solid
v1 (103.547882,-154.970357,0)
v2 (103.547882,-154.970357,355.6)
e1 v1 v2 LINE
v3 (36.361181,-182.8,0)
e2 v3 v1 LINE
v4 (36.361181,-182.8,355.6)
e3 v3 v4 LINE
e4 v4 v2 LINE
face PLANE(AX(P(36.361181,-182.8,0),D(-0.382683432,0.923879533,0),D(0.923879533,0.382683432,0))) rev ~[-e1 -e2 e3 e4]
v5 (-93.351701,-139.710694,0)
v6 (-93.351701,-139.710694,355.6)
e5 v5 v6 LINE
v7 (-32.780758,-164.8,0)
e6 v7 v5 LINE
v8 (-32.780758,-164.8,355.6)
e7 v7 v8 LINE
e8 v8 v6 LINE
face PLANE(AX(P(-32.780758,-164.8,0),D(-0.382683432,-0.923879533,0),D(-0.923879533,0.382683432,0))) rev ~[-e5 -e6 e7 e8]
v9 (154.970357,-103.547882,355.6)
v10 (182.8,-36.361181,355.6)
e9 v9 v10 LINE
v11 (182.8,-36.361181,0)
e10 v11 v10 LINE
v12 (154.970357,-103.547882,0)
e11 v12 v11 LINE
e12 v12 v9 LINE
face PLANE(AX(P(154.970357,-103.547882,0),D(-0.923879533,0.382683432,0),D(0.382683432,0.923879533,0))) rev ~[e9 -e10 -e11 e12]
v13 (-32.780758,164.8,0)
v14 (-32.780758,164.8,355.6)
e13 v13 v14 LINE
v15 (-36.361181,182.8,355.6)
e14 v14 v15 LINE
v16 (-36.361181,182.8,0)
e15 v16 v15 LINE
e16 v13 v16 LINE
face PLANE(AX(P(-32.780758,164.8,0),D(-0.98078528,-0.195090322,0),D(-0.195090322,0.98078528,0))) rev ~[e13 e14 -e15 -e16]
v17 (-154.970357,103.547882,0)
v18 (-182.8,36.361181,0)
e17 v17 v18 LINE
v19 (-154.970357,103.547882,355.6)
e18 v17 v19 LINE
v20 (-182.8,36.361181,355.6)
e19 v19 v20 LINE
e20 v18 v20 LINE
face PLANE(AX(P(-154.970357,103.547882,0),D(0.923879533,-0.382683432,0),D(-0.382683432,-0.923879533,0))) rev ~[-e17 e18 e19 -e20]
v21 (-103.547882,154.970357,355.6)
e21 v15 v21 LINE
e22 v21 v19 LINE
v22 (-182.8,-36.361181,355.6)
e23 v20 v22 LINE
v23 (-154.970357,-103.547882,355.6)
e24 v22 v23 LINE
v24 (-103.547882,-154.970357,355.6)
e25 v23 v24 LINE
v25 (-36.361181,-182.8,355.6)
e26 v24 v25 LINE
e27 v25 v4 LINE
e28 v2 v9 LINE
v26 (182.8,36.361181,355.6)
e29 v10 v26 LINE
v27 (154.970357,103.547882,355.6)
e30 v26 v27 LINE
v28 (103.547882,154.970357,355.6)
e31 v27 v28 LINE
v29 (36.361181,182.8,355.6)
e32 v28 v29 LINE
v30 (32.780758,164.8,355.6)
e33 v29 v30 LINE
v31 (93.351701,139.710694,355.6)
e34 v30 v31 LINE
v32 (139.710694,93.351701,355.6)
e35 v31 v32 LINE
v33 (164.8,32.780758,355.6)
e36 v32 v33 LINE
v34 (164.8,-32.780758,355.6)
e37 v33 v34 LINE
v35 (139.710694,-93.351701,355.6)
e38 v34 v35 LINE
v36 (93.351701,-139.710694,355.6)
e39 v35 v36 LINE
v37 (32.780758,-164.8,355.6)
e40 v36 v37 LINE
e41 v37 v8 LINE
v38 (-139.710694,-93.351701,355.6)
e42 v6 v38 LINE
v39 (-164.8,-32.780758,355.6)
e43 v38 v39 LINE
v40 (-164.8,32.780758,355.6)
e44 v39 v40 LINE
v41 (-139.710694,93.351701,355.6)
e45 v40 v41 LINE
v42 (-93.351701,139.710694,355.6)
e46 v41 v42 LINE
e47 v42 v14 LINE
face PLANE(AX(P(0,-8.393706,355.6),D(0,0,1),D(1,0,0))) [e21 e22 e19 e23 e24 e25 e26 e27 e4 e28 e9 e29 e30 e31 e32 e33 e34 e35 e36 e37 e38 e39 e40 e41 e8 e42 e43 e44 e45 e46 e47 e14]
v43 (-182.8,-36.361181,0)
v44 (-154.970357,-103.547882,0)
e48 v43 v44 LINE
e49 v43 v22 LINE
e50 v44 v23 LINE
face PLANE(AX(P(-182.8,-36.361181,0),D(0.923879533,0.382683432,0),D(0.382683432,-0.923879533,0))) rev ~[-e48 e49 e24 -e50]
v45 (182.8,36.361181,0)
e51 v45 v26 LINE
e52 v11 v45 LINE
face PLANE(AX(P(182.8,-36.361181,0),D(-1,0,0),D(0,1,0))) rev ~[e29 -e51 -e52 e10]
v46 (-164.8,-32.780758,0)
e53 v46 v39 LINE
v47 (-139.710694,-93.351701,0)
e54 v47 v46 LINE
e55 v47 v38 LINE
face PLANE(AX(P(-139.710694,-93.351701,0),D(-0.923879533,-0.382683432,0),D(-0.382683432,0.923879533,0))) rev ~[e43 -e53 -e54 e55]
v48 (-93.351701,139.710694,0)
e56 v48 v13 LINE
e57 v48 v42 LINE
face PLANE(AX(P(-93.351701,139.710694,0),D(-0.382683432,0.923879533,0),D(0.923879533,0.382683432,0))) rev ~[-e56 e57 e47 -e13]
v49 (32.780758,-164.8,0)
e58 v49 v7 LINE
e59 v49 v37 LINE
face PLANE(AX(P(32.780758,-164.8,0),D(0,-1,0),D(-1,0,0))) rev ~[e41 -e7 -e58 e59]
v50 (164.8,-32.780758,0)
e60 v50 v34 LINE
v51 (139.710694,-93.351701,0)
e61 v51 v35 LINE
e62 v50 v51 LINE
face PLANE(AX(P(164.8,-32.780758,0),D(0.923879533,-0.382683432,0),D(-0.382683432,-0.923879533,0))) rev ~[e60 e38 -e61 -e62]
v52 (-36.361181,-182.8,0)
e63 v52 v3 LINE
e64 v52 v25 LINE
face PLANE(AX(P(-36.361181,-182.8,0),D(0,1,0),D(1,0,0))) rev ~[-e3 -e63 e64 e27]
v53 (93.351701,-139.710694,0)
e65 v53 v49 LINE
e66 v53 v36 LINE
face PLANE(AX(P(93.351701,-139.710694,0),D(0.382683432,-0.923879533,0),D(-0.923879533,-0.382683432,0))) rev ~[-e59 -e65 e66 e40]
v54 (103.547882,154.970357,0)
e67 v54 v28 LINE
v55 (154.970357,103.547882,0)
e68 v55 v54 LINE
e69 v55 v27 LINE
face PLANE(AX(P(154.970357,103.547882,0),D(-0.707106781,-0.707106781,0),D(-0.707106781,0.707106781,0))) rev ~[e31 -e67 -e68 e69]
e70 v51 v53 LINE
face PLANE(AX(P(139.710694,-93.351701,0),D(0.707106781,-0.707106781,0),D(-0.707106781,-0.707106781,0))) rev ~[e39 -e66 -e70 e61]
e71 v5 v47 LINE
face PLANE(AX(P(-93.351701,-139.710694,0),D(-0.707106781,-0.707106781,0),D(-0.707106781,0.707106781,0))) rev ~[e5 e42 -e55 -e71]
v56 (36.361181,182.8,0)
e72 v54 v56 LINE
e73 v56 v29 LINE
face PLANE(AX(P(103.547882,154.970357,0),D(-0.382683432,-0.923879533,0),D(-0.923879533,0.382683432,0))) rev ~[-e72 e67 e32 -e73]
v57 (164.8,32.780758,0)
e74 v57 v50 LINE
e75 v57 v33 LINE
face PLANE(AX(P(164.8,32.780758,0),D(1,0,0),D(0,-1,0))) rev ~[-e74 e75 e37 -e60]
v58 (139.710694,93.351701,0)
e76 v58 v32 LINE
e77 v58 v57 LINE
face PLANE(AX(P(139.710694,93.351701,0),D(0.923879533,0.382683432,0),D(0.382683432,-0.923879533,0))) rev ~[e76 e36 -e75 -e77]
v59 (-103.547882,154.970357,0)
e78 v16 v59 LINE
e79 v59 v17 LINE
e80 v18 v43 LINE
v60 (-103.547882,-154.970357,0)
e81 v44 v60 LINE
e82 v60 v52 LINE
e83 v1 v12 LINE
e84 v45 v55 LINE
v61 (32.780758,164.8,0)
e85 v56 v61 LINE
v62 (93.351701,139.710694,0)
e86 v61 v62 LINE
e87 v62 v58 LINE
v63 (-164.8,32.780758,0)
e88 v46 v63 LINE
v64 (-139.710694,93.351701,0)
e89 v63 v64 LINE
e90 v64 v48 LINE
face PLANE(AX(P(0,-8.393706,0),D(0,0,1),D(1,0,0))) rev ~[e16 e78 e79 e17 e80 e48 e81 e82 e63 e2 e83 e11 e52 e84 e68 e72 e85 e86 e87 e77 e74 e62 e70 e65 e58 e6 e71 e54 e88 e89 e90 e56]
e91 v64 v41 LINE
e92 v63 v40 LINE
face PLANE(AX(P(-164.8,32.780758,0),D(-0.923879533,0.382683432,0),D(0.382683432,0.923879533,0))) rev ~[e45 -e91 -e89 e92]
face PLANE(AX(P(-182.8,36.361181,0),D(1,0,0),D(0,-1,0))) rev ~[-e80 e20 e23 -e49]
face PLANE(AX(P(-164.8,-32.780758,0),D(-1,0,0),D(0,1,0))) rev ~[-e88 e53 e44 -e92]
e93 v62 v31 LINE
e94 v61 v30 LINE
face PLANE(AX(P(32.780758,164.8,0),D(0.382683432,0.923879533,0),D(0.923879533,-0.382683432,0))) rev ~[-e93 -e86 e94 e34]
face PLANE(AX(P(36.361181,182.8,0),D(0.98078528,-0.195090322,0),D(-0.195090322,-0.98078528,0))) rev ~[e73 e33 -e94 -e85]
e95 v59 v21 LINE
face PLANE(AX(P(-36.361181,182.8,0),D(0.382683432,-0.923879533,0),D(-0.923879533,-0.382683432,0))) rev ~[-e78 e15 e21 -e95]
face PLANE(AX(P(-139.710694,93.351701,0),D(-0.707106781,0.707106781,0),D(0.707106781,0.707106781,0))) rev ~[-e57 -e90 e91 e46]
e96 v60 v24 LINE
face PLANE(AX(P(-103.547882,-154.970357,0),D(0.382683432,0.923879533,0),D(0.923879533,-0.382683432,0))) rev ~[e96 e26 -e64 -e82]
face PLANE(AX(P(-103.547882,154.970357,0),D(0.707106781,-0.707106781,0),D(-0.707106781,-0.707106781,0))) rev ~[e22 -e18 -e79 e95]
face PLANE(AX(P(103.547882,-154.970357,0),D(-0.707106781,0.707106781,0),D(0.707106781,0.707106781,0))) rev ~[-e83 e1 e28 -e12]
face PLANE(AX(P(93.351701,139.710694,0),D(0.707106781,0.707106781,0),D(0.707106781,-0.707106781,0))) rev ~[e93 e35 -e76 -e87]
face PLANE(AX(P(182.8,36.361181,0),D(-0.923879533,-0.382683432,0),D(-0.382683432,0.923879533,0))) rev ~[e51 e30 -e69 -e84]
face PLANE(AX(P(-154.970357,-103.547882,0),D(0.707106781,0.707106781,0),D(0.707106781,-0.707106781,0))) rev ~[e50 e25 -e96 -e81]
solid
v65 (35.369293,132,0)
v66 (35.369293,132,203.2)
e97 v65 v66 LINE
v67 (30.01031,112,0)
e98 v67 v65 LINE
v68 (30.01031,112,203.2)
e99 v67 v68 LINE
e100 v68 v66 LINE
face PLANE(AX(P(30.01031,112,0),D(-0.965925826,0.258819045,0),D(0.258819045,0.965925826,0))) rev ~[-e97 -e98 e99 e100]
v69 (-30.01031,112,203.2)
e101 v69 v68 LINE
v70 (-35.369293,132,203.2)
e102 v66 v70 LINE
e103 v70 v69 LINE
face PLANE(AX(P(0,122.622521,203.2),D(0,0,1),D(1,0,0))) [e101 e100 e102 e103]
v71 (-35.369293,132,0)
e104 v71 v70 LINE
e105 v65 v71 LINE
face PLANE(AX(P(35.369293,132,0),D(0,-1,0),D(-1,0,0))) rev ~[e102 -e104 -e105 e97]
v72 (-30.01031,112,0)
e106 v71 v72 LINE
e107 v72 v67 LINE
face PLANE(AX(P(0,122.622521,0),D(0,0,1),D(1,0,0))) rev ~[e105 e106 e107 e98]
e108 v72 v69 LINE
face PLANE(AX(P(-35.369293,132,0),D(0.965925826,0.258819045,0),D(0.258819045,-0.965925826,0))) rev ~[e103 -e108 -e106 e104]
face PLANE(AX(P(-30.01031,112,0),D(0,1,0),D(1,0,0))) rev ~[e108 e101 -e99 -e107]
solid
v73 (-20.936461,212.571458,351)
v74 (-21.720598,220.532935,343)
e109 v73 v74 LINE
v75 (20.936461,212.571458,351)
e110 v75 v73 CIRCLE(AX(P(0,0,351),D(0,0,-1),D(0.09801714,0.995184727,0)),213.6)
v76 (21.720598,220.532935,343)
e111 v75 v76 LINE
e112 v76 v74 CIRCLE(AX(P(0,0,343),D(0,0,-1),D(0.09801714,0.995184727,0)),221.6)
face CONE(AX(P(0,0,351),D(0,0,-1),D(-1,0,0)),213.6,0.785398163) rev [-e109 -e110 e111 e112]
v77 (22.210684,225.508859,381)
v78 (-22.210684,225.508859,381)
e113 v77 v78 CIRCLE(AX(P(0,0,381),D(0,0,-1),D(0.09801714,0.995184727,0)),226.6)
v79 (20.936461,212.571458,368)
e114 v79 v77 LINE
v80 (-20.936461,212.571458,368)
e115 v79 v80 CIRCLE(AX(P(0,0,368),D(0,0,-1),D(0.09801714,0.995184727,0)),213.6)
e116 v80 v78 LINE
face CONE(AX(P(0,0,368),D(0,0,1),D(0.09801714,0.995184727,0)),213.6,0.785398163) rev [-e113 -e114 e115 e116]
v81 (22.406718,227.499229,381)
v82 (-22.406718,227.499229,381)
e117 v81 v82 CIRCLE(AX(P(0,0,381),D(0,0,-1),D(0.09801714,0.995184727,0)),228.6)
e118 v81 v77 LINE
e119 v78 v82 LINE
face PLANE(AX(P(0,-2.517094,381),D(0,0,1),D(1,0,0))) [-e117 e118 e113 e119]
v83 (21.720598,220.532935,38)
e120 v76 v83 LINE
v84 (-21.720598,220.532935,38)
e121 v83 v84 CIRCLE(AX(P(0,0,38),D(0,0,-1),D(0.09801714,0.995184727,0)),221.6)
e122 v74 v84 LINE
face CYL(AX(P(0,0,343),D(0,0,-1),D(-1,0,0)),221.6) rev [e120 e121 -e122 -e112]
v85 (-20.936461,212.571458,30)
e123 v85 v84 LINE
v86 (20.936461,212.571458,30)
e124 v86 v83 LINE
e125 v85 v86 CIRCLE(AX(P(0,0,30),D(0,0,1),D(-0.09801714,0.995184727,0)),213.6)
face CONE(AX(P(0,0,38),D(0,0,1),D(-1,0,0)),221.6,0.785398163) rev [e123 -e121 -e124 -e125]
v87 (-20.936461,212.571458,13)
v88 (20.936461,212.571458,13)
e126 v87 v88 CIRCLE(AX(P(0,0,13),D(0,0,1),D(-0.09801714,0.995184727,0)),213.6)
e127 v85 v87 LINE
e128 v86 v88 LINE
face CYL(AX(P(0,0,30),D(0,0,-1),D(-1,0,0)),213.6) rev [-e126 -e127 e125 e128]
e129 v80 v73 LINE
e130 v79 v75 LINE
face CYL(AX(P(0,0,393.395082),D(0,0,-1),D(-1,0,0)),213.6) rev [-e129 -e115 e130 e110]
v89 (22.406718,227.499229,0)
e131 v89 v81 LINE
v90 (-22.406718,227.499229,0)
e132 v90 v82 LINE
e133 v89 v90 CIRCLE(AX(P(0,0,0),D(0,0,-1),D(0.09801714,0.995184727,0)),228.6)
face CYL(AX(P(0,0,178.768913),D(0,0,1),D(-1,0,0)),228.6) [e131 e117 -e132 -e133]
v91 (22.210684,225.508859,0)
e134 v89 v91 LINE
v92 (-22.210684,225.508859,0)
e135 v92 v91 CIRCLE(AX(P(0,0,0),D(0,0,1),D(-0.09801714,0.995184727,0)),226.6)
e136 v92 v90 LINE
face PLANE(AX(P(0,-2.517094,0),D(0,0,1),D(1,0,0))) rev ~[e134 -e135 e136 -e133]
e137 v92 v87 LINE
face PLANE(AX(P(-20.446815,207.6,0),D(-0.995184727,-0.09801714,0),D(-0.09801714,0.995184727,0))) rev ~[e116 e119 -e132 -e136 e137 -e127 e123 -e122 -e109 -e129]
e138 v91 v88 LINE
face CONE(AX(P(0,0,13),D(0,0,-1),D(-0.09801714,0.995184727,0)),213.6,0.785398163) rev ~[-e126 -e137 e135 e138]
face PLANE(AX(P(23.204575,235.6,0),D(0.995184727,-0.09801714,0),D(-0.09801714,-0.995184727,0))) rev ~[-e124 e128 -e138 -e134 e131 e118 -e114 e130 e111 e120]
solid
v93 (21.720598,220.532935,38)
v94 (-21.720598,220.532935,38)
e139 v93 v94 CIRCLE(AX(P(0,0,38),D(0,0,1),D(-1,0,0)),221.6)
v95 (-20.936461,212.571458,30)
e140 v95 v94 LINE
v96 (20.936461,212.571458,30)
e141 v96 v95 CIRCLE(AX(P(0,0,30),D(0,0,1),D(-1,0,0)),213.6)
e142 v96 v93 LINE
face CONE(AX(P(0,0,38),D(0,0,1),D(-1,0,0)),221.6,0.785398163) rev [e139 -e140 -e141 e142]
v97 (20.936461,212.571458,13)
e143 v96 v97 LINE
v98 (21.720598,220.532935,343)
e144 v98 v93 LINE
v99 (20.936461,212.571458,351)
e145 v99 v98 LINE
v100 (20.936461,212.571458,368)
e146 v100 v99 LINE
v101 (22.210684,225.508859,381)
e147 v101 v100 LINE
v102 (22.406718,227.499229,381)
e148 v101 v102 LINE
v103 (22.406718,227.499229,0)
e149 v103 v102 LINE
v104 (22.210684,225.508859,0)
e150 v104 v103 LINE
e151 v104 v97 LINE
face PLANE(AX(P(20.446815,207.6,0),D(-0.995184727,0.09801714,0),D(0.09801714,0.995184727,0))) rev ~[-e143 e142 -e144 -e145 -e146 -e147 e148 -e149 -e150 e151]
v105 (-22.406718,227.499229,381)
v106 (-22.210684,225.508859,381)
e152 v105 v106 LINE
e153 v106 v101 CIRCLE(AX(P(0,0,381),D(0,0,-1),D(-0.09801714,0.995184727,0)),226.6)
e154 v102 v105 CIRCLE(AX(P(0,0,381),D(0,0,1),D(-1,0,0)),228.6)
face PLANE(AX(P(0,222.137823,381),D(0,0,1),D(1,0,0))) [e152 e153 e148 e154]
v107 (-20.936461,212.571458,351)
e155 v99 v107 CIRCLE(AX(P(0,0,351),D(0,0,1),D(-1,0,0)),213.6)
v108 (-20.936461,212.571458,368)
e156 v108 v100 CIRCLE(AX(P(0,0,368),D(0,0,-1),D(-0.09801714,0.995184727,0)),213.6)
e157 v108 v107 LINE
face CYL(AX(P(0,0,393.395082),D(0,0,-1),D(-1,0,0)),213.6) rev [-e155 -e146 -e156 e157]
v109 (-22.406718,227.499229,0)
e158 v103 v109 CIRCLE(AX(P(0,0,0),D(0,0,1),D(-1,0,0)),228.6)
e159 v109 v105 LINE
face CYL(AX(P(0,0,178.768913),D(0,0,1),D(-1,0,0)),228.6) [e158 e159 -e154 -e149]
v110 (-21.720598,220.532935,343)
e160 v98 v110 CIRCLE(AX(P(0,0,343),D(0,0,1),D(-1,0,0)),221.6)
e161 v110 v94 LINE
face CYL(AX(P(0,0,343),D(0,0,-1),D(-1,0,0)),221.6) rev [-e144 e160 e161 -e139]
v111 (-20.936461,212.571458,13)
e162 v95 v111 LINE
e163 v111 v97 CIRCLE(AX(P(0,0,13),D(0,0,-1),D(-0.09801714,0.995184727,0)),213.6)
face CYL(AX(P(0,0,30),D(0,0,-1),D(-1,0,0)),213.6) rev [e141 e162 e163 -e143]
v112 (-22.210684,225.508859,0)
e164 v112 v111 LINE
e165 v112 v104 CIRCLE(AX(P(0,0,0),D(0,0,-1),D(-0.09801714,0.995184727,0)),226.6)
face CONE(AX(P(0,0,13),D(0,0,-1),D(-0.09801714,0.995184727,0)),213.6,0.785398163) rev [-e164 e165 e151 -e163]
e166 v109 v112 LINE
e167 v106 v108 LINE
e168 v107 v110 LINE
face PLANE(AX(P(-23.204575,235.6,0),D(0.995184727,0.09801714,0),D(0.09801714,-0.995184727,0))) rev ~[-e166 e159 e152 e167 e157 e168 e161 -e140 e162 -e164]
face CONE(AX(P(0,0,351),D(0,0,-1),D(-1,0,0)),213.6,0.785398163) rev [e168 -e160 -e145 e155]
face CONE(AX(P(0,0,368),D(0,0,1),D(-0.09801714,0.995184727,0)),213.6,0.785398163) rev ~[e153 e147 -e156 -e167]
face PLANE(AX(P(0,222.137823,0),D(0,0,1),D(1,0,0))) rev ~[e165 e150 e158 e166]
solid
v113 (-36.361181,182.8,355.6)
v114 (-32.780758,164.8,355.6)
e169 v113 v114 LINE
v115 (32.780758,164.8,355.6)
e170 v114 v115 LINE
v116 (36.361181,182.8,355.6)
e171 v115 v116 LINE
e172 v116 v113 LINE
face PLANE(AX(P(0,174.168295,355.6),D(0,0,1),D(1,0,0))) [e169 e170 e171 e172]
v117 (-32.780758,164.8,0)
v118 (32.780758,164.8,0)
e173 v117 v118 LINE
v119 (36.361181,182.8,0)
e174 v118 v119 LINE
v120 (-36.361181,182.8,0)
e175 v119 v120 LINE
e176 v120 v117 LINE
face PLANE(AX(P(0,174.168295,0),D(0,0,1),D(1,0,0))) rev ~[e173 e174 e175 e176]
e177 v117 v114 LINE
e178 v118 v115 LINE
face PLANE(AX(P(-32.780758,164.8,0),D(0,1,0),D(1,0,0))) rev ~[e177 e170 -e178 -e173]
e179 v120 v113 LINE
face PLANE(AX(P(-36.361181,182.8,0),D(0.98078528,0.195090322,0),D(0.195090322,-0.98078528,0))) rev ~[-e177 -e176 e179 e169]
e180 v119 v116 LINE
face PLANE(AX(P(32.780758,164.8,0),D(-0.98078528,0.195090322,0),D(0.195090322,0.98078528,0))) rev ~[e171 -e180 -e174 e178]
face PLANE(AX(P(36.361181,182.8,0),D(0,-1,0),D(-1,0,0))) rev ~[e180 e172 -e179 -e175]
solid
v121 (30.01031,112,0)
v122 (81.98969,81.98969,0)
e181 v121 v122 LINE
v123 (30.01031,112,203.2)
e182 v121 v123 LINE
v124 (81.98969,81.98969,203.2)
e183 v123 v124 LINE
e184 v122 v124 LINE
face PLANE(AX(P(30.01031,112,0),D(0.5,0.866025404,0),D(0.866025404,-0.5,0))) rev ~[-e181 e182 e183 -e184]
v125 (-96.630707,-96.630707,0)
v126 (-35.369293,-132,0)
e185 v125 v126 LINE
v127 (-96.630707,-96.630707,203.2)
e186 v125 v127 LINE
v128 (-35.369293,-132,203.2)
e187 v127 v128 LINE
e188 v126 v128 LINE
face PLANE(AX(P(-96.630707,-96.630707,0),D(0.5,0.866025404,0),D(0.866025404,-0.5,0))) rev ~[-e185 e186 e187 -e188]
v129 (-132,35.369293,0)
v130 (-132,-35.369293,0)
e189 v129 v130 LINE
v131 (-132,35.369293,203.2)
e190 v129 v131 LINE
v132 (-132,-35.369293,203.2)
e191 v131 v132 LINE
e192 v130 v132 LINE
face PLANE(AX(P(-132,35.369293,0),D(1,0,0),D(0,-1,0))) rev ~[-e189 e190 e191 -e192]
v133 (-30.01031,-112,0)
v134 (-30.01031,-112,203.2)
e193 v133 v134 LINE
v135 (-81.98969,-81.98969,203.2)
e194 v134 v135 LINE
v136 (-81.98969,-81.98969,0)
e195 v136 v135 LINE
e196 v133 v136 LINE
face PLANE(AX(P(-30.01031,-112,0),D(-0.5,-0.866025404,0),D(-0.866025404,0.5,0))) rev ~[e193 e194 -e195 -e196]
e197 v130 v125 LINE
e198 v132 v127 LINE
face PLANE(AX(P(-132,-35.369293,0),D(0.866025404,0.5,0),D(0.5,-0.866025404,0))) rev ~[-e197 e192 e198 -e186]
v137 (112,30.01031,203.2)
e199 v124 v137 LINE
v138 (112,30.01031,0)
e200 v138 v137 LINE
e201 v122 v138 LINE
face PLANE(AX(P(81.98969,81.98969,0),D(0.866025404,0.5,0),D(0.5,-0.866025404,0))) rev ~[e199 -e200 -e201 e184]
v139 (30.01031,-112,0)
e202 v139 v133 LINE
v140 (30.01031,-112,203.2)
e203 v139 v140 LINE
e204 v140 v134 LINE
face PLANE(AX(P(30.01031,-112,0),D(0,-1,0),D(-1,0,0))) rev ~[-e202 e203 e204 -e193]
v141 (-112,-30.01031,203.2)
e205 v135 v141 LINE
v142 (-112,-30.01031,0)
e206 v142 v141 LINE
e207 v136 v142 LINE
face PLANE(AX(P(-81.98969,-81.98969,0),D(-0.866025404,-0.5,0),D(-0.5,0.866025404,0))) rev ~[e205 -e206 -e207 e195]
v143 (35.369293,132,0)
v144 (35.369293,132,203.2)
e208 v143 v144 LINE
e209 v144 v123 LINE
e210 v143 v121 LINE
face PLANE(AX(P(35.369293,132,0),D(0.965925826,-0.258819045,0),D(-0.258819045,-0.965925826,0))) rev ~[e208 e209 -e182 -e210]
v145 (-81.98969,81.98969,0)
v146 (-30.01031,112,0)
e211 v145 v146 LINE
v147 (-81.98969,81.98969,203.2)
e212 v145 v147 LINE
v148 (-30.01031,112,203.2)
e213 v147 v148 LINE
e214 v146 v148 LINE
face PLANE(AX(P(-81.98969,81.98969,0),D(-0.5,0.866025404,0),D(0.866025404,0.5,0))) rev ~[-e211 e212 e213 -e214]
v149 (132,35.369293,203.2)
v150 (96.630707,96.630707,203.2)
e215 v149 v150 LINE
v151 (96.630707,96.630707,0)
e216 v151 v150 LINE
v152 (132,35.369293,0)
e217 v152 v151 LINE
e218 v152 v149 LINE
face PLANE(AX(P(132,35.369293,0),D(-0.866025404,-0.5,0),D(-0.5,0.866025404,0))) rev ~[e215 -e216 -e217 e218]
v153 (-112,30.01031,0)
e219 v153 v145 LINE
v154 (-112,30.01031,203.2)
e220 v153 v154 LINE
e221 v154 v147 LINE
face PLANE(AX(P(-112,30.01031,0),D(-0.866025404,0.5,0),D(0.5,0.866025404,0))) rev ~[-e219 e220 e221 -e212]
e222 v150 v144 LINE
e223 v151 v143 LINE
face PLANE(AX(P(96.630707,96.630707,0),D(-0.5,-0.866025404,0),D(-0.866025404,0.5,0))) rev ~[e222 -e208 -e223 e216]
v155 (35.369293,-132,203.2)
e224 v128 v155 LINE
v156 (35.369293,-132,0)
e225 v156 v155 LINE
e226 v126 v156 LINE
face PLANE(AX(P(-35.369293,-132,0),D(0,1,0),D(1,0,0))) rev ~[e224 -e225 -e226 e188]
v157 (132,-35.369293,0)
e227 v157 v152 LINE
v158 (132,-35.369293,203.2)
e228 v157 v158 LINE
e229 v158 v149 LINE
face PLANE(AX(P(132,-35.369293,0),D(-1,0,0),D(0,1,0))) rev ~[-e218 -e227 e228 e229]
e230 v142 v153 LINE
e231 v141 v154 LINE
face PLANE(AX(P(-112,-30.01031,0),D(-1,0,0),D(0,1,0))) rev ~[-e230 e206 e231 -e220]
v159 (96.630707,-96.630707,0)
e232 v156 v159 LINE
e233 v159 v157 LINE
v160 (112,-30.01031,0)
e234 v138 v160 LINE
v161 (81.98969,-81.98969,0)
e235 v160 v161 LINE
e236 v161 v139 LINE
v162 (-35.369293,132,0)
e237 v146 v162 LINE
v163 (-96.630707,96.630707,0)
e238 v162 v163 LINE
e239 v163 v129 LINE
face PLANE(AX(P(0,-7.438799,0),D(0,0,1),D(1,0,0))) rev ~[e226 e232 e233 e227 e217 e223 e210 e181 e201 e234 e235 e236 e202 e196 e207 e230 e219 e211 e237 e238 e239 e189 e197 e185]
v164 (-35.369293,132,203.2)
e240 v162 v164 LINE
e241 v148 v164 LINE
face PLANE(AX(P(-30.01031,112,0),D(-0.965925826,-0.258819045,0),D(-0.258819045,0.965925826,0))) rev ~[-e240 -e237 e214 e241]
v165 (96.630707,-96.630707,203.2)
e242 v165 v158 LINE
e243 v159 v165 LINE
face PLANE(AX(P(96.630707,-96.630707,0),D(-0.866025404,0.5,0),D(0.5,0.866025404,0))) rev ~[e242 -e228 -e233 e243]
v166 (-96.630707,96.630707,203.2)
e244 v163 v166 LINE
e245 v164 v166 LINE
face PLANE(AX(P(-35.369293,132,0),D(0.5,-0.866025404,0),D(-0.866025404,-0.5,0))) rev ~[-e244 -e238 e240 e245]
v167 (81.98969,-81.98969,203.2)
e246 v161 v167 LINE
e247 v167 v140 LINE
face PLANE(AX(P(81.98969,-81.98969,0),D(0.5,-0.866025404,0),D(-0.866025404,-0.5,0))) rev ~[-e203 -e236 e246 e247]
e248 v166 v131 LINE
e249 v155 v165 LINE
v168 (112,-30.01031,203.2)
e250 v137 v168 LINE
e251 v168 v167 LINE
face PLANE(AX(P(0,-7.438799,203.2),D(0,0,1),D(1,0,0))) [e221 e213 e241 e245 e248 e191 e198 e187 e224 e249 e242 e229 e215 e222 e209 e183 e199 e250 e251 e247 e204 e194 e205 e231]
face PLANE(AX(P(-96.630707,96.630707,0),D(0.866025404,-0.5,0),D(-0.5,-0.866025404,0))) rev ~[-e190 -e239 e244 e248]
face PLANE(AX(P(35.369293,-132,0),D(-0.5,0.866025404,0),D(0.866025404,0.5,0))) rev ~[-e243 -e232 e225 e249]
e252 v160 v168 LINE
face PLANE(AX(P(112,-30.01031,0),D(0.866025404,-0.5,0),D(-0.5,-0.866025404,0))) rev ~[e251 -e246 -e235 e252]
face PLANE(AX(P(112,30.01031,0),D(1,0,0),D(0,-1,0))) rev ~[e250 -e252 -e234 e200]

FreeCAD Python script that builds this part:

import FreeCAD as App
import Part
import Sketcher

V = App.Vector
Q = App.Units.Quantity


def edges_at(feature, points):
    """Names of the edges that pass closest to the given points."""
    edges = feature.Shape.Edges
    near = lambda p: min(range(len(edges)), key=lambda i: edges[i].distToShape(Part.Vertex(*p))[0])
    return sorted({f"Edge{near(p) + 1}" for p in points})

doc = App.newDocument("Part")
body = doc.addObject("PartDesign::Body", "Body")

sketch1 = doc.addObject("Sketcher::SketchObject", "Sketch")
body.addObject(sketch1)
sketch1.AttachmentSupport = (doc.XY_Plane, [""])
sketch1.MapMode = "FlatFace"
sketch1.addGeometry([
    Part.LineSegment(V(20, 208, 0), V(23, 236, 0)),
    Part.LineSegment(V(23, 236, 0), V(-23, 236, 0)),
    Part.LineSegment(V(-23, 236, 0), V(-20, 208, 0)),
    Part.LineSegment(V(-20, 208, 0), V(20, 208, 0)),
], False)
sketch1.addConstraint([
    Sketcher.Constraint("Coincident", 0, 2, 1, 1),
    Sketcher.Constraint("Coincident", 1, 2, 2, 1),
    Sketcher.Constraint("Coincident", 2, 2, 3, 1),
    Sketcher.Constraint("Coincident", 3, 2, 0, 1),
    Sketcher.Constraint("Horizontal", 1),
    Sketcher.Constraint("Horizontal", 3),
    Sketcher.Constraint("Equal", 0, 2),
    Sketcher.Constraint("DistanceX", 1, 2, 1, 1, 46.409149),
    Sketcher.Constraint("DistanceX", 3, 1, 3, 2, 40.893631),
    Sketcher.Constraint("DistanceY", -1, 1, 0, 2, 235.6),
    Sketcher.Constraint("DistanceY", -1, 1, 2, 2, 207.6),
    Sketcher.Constraint("DistanceX", -1, 1, 0, 2, 23.204575),
])
pad1 = doc.addObject("PartDesign::Pad", "Pad")
body.addObject(pad1)
pad1.Profile = sketch1
pad1.Length = Q("15 in")
body2 = doc.addObject("PartDesign::Body", "Body001")

sketch2 = doc.addObject("Sketcher::SketchObject", "Sketch001")
body2.addObject(sketch2)
sketch2.AttachmentSupport = (doc.getObject("XY_Plane001"), [""])
sketch2.MapMode = "FlatFace"
sketch2.addGeometry([
    Part.LineSegment(V(236, 23, 0), V(227, 69, 0)),
    Part.LineSegment(V(227, 69, 0), V(209, 112, 0)),
    Part.LineSegment(V(209, 112, 0), V(183, 150, 0)),
    Part.LineSegment(V(183, 150, 0), V(150, 183, 0)),
    Part.LineSegment(V(150, 183, 0), V(112, 209, 0)),
    Part.LineSegment(V(112, 209, 0), V(69, 227, 0)),
    Part.LineSegment(V(69, 227, 0), V(23, 236, 0)),
    Part.LineSegment(V(23, 236, 0), V(20, 208, 0)),
    Part.LineSegment(V(20, 208, 0), V(61, 200, 0)),
    Part.LineSegment(V(61, 200, 0), V(98, 184, 0)),
    Part.LineSegment(V(98, 184, 0), V(132, 161, 0)),
    Part.LineSegment(V(132, 161, 0), V(161, 132, 0)),
    Part.LineSegment(V(161, 132, 0), V(184, 98, 0)),
    Part.LineSegment(V(184, 98, 0), V(200, 61, 0)),
    Part.LineSegment(V(200, 61, 0), V(208, 20, 0)),
    Part.LineSegment(V(208, 20, 0), V(208, -20, 0)),
    Part.LineSegment(V(208, -20, 0), V(200, -61, 0)),
    Part.LineSegment(V(200, -61, 0), V(184, -98, 0)),
    Part.LineSegment(V(184, -98, 0), V(161, -132, 0)),
    Part.LineSegment(V(161, -132, 0), V(132, -161, 0)),
    Part.LineSegment(V(132, -161, 0), V(98, -184, 0)),
    Part.LineSegment(V(98, -184, 0), V(61, -200, 0)),
    Part.LineSegment(V(61, -200, 0), V(20, -208, 0)),
    Part.LineSegment(V(20, -208, 0), V(-20, -208, 0)),
    Part.LineSegment(V(-20, -208, 0), V(-61, -200, 0)),
    Part.LineSegment(V(-61, -200, 0), V(-98, -184, 0)),
    Part.LineSegment(V(-98, -184, 0), V(-132, -161, 0)),
    Part.LineSegment(V(-132, -161, 0), V(-161, -132, 0)),
    Part.LineSegment(V(-161, -132, 0), V(-184, -98, 0)),
    Part.LineSegment(V(-184, -98, 0), V(-200, -61, 0)),
    Part.LineSegment(V(-200, -61, 0), V(-208, -20, 0)),
    Part.LineSegment(V(-208, -20, 0), V(-208, 20, 0)),
    Part.LineSegment(V(-208, 20, 0), V(-200, 61, 0)),
    Part.LineSegment(V(-200, 61, 0), V(-184, 98, 0)),
    Part.LineSegment(V(-184, 98, 0), V(-161, 132, 0)),
    Part.LineSegment(V(-161, 132, 0), V(-132, 161, 0)),
    Part.LineSegment(V(-132, 161, 0), V(-98, 184, 0)),
    Part.LineSegment(V(-98, 184, 0), V(-61, 200, 0)),
    Part.LineSegment(V(-61, 200, 0), V(-20, 208, 0)),
    Part.LineSegment(V(-20, 208, 0), V(-23, 236, 0)),
    Part.LineSegment(V(-23, 236, 0), V(-69, 227, 0)),
    Part.LineSegment(V(-69, 227, 0), V(-112, 209, 0)),
    Part.LineSegment(V(-112, 209, 0), V(-150, 183, 0)),
    Part.LineSegment(V(-150, 183, 0), V(-183, 150, 0)),
    Part.LineSegment(V(-183, 150, 0), V(-209, 112, 0)),
    Part.LineSegment(V(-209, 112, 0), V(-227, 69, 0)),
    Part.LineSegment(V(-227, 69, 0), V(-236, 23, 0)),
    Part.LineSegment(V(-236, 23, 0), V(-236, -23, 0)),
    Part.LineSegment(V(-236, -23, 0), V(-227, -69, 0)),
    Part.LineSegment(V(-227, -69, 0), V(-209, -112, 0)),
    Part.LineSegment(V(-209, -112, 0), V(-183, -150, 0)),
    Part.LineSegment(V(-183, -150, 0), V(-150, -183, 0)),
    Part.LineSegment(V(-150, -183, 0), V(-112, -209, 0)),
    Part.LineSegment(V(-112, -209, 0), V(-69, -227, 0)),
    Part.LineSegment(V(-69, -227, 0), V(-23, -236, 0)),
    Part.LineSegment(V(-23, -236, 0), V(23, -236, 0)),
    Part.LineSegment(V(23, -236, 0), V(69, -227, 0)),
    Part.LineSegment(V(69, -227, 0), V(112, -209, 0)),
    Part.LineSegment(V(112, -209, 0), V(150, -183, 0)),
    Part.LineSegment(V(150, -183, 0), V(183, -150, 0)),
    Part.LineSegment(V(183, -150, 0), V(209, -112, 0)),
    Part.LineSegment(V(209, -112, 0), V(227, -69, 0)),
    Part.LineSegment(V(227, -69, 0), V(236, -23, 0)),
    Part.LineSegment(V(236, -23, 0), V(236, 23, 0)),
], False)
sketch2.addConstraint([
    Sketcher.Constraint("Coincident", 0, 2, 1, 1),
    Sketcher.Constraint("Coincident", 1, 2, 2, 1),
    Sketcher.Constraint("Coincident", 2, 2, 3, 1),
    Sketcher.Constraint("Coincident", 3, 2, 4, 1),
    Sketcher.Constraint("Coincident", 4, 2, 5, 1),
    Sketcher.Constraint("Coincident", 5, 2, 6, 1),
    Sketcher.Constraint("Coincident", 6, 2, 7, 1),
    Sketcher.Constraint("Coincident", 7, 2, 8, 1),
    Sketcher.Constraint("Coincident", 8, 2, 9, 1),
    Sketcher.Constraint("Coincident", 9, 2, 10, 1),
    Sketcher.Constraint("Coincident", 10, 2, 11, 1),
    Sketcher.Constraint("Coincident", 11, 2, 12, 1),
    Sketcher.Constraint("Coincident", 12, 2, 13, 1),
    Sketcher.Constraint("Coincident", 13, 2, 14, 1),
    Sketcher.Constraint("Coincident", 14, 2, 15, 1),
    Sketcher.Constraint("Coincident", 15, 2, 16, 1),
    Sketcher.Constraint("Coincident", 16, 2, 17, 1),
    Sketcher.Constraint("Coincident", 17, 2, 18, 1),
    Sketcher.Constraint("Coincident", 18, 2, 19, 1),
    Sketcher.Constraint("Coincident", 19, 2, 20, 1),
    Sketcher.Constraint("Coincident", 20, 2, 21, 1),
    Sketcher.Constraint("Coincident", 21, 2, 22, 1),
    Sketcher.Constraint("Coincident", 22, 2, 23, 1),
    Sketcher.Constraint("Coincident", 23, 2, 24, 1),
    Sketcher.Constraint("Coincident", 24, 2, 25, 1),
    Sketcher.Constraint("Coincident", 25, 2, 26, 1),
    Sketcher.Constraint("Coincident", 26, 2, 27, 1),
    Sketcher.Constraint("Coincident", 27, 2, 28, 1),
    Sketcher.Constraint("Coincident", 28, 2, 29, 1),
    Sketcher.Constraint("Coincident", 29, 2, 30, 1),
    Sketcher.Constraint("Coincident", 30, 2, 31, 1),
    Sketcher.Constraint("Coincident", 31, 2, 32, 1),
    Sketcher.Constraint("Coincident", 32, 2, 33, 1),
    Sketcher.Constraint("Coincident", 33, 2, 34, 1),
    Sketcher.Constraint("Coincident", 34, 2, 35, 1),
    Sketcher.Constraint("Coincident", 35, 2, 36, 1),
    Sketcher.Constraint("Coincident", 36, 2, 37, 1),
    Sketcher.Constraint("Coincident", 37, 2, 38, 1),
    Sketcher.Constraint("Coincident", 38, 2, 39, 1),
    Sketcher.Constraint("Coincident", 39, 2, 40, 1),
    Sketcher.Constraint("Coincident", 40, 2, 41, 1),
    Sketcher.Constraint("Coincident", 41, 2, 42, 1),
    Sketcher.Constraint("Coincident", 42, 2, 43, 1),
    Sketcher.Constraint("Coincident", 43, 2, 44, 1),
    Sketcher.Constraint("Coincident", 44, 2, 45, 1),
    Sketcher.Constraint("Coincident", 45, 2, 46, 1),
    Sketcher.Constraint("Coincident", 46, 2, 47, 1),
    Sketcher.Constraint("Coincident", 47, 2, 48, 1),
    Sketcher.Constraint("Coincident", 48, 2, 49, 1),
    Sketcher.Constraint("Coincident", 49, 2, 50, 1),
    Sketcher.Constraint("Coincident", 50, 2, 51, 1),
    Sketcher.Constraint("Coincident", 51, 2, 52, 1),
    Sketcher.Constraint("Coincident", 52, 2, 53, 1),
    Sketcher.Constraint("Coincident", 53, 2, 54, 1),
    Sketcher.Constraint("Coincident", 54, 2, 55, 1),
    Sketcher.Constraint("Coincident", 55, 2, 56, 1),
    Sketcher.Constraint("Coincident", 56, 2, 57, 1),
    Sketcher.Constraint("Coincident", 57, 2, 58, 1),
    Sketcher.Constraint("Coincident", 58, 2, 59, 1),
    Sketcher.Constraint("Coincident", 59, 2, 60, 1),
    Sketcher.Constraint("Coincident", 60, 2, 61, 1),
    Sketcher.Constraint("Coincident", 61, 2, 62, 1),
    Sketcher.Constraint("Coincident", 62, 2, 63, 1),
    Sketcher.Constraint("Coincident", 63, 2, 0, 1),
    Sketcher.Constraint("Vertical", 15),
    Sketcher.Constraint("Horizontal", 23),
    Sketcher.Constraint("Vertical", 31),
    Sketcher.Constraint("Vertical", 47),
    Sketcher.Constraint("Horizontal", 55),
    Sketcher.Constraint("Vertical", 63),
    Sketcher.Constraint("Symmetric", 7, 2, 23, 2, -1, 1),
    Sketcher.Constraint("Symmetric", 8, 2, 24, 2, -1, 1),
    Sketcher.Constraint("Symmetric", 9, 2, 25, 2, -1, 1),
    Sketcher.Constraint("Symmetric", 10, 2, 26, 2, -1, 1),
    Sketcher.Constraint("Symmetric", 11, 2, 27, 2, -1, 1),
    Sketcher.Constraint("Symmetric", 12, 2, 28, 2, -1, 1),
    Sketcher.Constraint("Symmetric", 13, 2, 29, 2, -1, 1),
    Sketcher.Constraint("Symmetric", 14, 2, 30, 2, -1, 1),
    Sketcher.Constraint("Symmetric", 16, 2, 32, 2, -1, 1),
    Sketcher.Constraint("Symmetric", 17, 2, 33, 2, -1, 1),
    Sketcher.Constraint("Symmetric", 18, 2, 34, 2, -1, 1),
    Sketcher.Constraint("Symmetric", 19, 2, 35, 2, -1, 1),
    Sketcher.Constraint("Symmetric", 20, 2, 36, 2, -1, 1),
    Sketcher.Constraint("Symmetric", 21, 2, 37, 2, -1, 1),
    Sketcher.Constraint("Symmetric", 22, 2, 38, 2, -1, 1),
    Sketcher.Constraint("Symmetric", 0, 2, 48, 2, -1, 1),
    Sketcher.Constraint("Symmetric", 1, 2, 49, 2, -1, 1),
    Sketcher.Constraint("Symmetric", 2, 2, 50, 2, -1, 1),
    Sketcher.Constraint("Symmetric", 3, 2, 51, 2, -1, 1),
    Sketcher.Constraint("Symmetric", 4, 2, 52, 2, -1, 1),
    Sketcher.Constraint("Symmetric", 5, 2, 53, 2, -1, 1),
    Sketcher.Constraint("Symmetric", 6, 2, 54, 2, -1, 1),
    Sketcher.Constraint("Symmetric", 39, 2, 55, 2, -1, 1),
    Sketcher.Constraint("Symmetric", 40, 2, 56, 2, -1, 1),
    Sketcher.Constraint("Symmetric", 41, 2, 57, 2, -1, 1),
    Sketcher.Constraint("Symmetric", 42, 2, 58, 2, -1, 1),
    Sketcher.Constraint("Symmetric", 43, 2, 59, 2, -1, 1),
    Sketcher.Constraint("Symmetric", 44, 2, 60, 2, -1, 1),
    Sketcher.Constraint("Symmetric", 45, 2, 61, 2, -1, 1),
    Sketcher.Constraint("Symmetric", 46, 2, 62, 2, -1, 1),
    Sketcher.Constraint("Symmetric", 21, 2, 24, 2, -2),
    Sketcher.Constraint("Symmetric", 20, 2, 25, 2, -2),
    Sketcher.Constraint("Symmetric", 19, 2, 26, 2, -2),
    Sketcher.Constraint("Symmetric", 18, 2, 27, 2, -2),
    Sketcher.Constraint("Symmetric", 17, 2, 28, 2, -2),
    Sketcher.Constraint("Symmetric", 16, 2, 29, 2, -2),
    Sketcher.Constraint("Symmetric", 5, 2, 40, 2, -2),
    Sketcher.Constraint("Symmetric", 4, 2, 41, 2, -2),
    Sketcher.Constraint("Symmetric", 3, 2, 42, 2, -2),
    Sketcher.Constraint("Symmetric", 2, 2, 43, 2, -2),
    Sketcher.Constraint("Symmetric", 1, 2, 44, 2, -2),
    Sketcher.Constraint("Symmetric", 0, 2, 45, 2, -2),
    Sketcher.Constraint("Parallel", 6, 8),
    Sketcher.Constraint("Parallel", 5, 9),
    Sketcher.Constraint("Parallel", 4, 10),
    Sketcher.Constraint("Parallel", 3, 11),
    Sketcher.Constraint("Parallel", 2, 12),
    Sketcher.Constraint("Parallel", 1, 13),
    Sketcher.Constraint("Parallel", 0, 14),
    Sketcher.Constraint("Perpendicular", 8, 16),
    Sketcher.Constraint("Perpendicular", 9, 17),
    Sketcher.Constraint("Perpendicular", 10, 18),
    Sketcher.Constraint("Perpendicular", 11, 19),
    Sketcher.Constraint("Perpendicular", 14, 22),
    Sketcher.Constraint("Perpendicular", 24, 32),
    Sketcher.Constraint("Parallel", 38, 40),
    Sketcher.Constraint("Parallel", 32, 46),
    Sketcher.Constraint("Perpendicular", 40, 48),
    Sketcher.Constraint("Horizontal", 15, 2, 30, 2),
    Sketcher.Constraint("Equal", 23, 15),
    Sketcher.Constraint("Equal", 55, 47),
    Sketcher.Constraint("Equal", 0, 1),
    Sketcher.Constraint("Equal", 1, 2),
    Sketcher.Constraint("Equal", 2, 3),
    Sketcher.Constraint("Equal", 3, 4),
    Sketcher.Constraint("Equal", 4, 5),
    Sketcher.Constraint("Equal", 5, 6),
    Sketcher.Constraint("Equal", 8, 9),
    Sketcher.Constraint("Equal", 9, 10),
    Sketcher.Constraint("Equal", 10, 11),
    Sketcher.Constraint("Equal", 11, 12),
    Sketcher.Constraint("Equal", 12, 13),
    Sketcher.Constraint("Equal", 13, 14),
    Sketcher.Constraint("Angle", 1, Q("112.5 deg")),
    Sketcher.Constraint("Angle", 0, Q("101.25 deg")),
    Sketcher.Constraint("Angle", 2, Q("123.75 deg")),
    Sketcher.Constraint("DistanceX", 23, 2, 23, 1, 40.893631),
    Sketcher.Constraint("DistanceX", 55, 1, 55, 2, 46.409149),
    Sketcher.Constraint("DistanceY", -1, 1, 6, 2, 235.6),
    Sketcher.Constraint("DistanceY", -1, 1, 7, 2, 207.6),
])
pad2 = doc.addObject("PartDesign::Pad", "Pad001")
body2.addObject(pad2)
pad2.Profile = sketch2
pad2.Length = Q("15 in")
body3 = doc.addObject("PartDesign::Body", "Body002")
body3.AllowCompound = True

sketch3 = doc.addObject("Sketcher::SketchObject", "Sketch002")
body3.addObject(sketch3)
sketch3.AttachmentSupport = (doc.getObject("XZ_Plane002"), [""])
sketch3.MapMode = "FlatFace"
sketch3.addGeometry([
    Part.LineSegment(V(-342, 393, 0), V(-342, -36, 0)),
    Part.LineSegment(V(-342, -36, 0), V(-229, -36, 0)),
    Part.LineSegment(V(-229, -36, 0), V(-229, 393, 0)),
    Part.LineSegment(V(-229, 393, 0), V(-342, 393, 0)),
    Part.LineSegment(V(-214, 30, 0), V(-214, -36, 0)),
    Part.LineSegment(V(-214, -36, 0), V(-191, -36, 0)),
    Part.LineSegment(V(-191, -36, 0), V(-191, 393, 0)),
    Part.LineSegment(V(-191, 393, 0), V(-214, 393, 0)),
    Part.LineSegment(V(-214, 393, 0), V(-214, 351, 0)),
    Part.LineSegment(V(-214, 351, 0), V(-222, 343, 0)),
    Part.LineSegment(V(-222, 343, 0), V(-222, 38, 0)),
    Part.LineSegment(V(-222, 38, 0), V(-214, 30, 0)),
], False)
sketch3.addConstraint([
    Sketcher.Constraint("Coincident", 0, 2, 1, 1),
    Sketcher.Constraint("Coincident", 1, 2, 2, 1),
    Sketcher.Constraint("Coincident", 2, 2, 3, 1),
    Sketcher.Constraint("Coincident", 3, 2, 0, 1),
    Sketcher.Constraint("Coincident", 4, 2, 5, 1),
    Sketcher.Constraint("Coincident", 5, 2, 6, 1),
    Sketcher.Constraint("Coincident", 6, 2, 7, 1),
    Sketcher.Constraint("Coincident", 7, 2, 8, 1),
    Sketcher.Constraint("Coincident", 8, 2, 9, 1),
    Sketcher.Constraint("Coincident", 9, 2, 10, 1),
    Sketcher.Constraint("Coincident", 10, 2, 11, 1),
    Sketcher.Constraint("Coincident", 11, 2, 4, 1),
    Sketcher.Constraint("Vertical", 0),
    Sketcher.Constraint("Horizontal", 1),
    Sketcher.Constraint("Vertical", 2),
    Sketcher.Constraint("Horizontal", 3),
    Sketcher.Constraint("Vertical", 4),
    Sketcher.Constraint("Horizontal", 5),
    Sketcher.Constraint("Vertical", 6),
    Sketcher.Constraint("Horizontal", 7),
    Sketcher.Constraint("Vertical", 8),
    Sketcher.Constraint("Vertical", 10),
    Sketcher.Constraint("Perpendicular", 9, 11),
    Sketcher.Constraint("Horizontal", 1, 2, 4, 2),
    Sketcher.Constraint("Horizontal", 3, 2, 6, 2),
    Sketcher.Constraint("Vertical", 4, 2, 7, 2),
    Sketcher.Constraint("Equal", 9, 11),
    Sketcher.Constraint("DistanceX", 1, 2, -1, 1, Q("9 in")),
    Sketcher.Constraint("DistanceY", 10, 2, 10, 1, 305.0),
    Sketcher.Constraint("DistanceX", 1, 1, 1, 2, 113.44957),
    Sketcher.Constraint("DistanceX", 4, 2, -1, 1, 213.6),
    Sketcher.Constraint("DistanceY", -1, 1, 8, 2, 351.0),
    Sketcher.Constraint("DistanceX", 9, 2, -1, 1, 221.6),
    Sketcher.Constraint("DistanceX", 5, 1, 5, 2, 23.082186),
    Sketcher.Constraint("DistanceY", 0, 2, 0, 1, 429.252338),
    Sketcher.Constraint("DistanceY", 4, 2, 4, 1, 65.857255),
])
revolution = doc.addObject("PartDesign::Revolution", "Revolution")
body3.addObject(revolution)
revolution.Profile = sketch3
revolution.ReferenceAxis = (sketch3, ["V_Axis"])
revolution.Angle = 360
doc.recompute()

body4 = doc.addObject("PartDesign::Body", "Body003")
body4.BaseFeature = body3
boolean = doc.addObject("PartDesign::Boolean", "Boolean")
body.addObject(boolean)
boolean.Type = "Cut"
boolean.addObjects([body4])
doc.recompute()

chamfer = doc.addObject("PartDesign::Chamfer", "Chamfer")
body.addObject(chamfer)
chamfer.Base = (boolean, edges_at(boolean, [(0, 213.6, 381), (0, 213.6, 0)]))
chamfer.Size = 13
doc.recompute()

boolean2 = doc.addObject("PartDesign::Boolean", "Boolean001")
body2.addObject(boolean2)
boolean2.Type = "Cut"
boolean2.addObjects([body3])
doc.recompute()

chamfer2 = doc.addObject("PartDesign::Chamfer", "Chamfer001")
body2.addObject(chamfer2)
chamfer2.Base = (boolean2, edges_at(boolean2, [(0, -213.6, 381), (0, -213.6, 0)]))
chamfer2.Size = 13
body5 = doc.addObject("PartDesign::Body", "Body004")

sketch4 = doc.addObject("Sketcher::SketchObject", "Sketch003")
body5.addObject(sketch4)
sketch4.AttachmentSupport = (doc.getObject("XY_Plane004"), [""])
sketch4.MapMode = "FlatFace"
sketch4.addGeometry([
    Part.LineSegment(V(33, 165, 0), V(36, 183, 0)),
    Part.LineSegment(V(36, 183, 0), V(-36, 183, 0)),
    Part.LineSegment(V(-36, 183, 0), V(-33, 165, 0)),
    Part.LineSegment(V(-33, 165, 0), V(33, 165, 0)),
], False)
sketch4.addConstraint([
    Sketcher.Constraint("Coincident", 0, 2, 1, 1),
    Sketcher.Constraint("Coincident", 1, 2, 2, 1),
    Sketcher.Constraint("Coincident", 2, 2, 3, 1),
    Sketcher.Constraint("Coincident", 3, 2, 0, 1),
    Sketcher.Constraint("Horizontal", 1),
    Sketcher.Constraint("Horizontal", 3),
    Sketcher.Constraint("Equal", 0, 2),
    Sketcher.Constraint("Angle", 0, Q("78.75 deg")),
    Sketcher.Constraint("DistanceX", 1, 2, 1, 1, 72.722362),
    Sketcher.Constraint("DistanceY", -1, 1, 0, 2, 182.8),
    Sketcher.Constraint("DistanceY", -1, 1, 2, 2, 164.8),
    Sketcher.Constraint("DistanceX", -1, 1, 0, 2, 36.361181),
])
pad3 = doc.addObject("PartDesign::Pad", "Pad002")
body5.addObject(pad3)
pad3.Profile = sketch4
pad3.Length = Q("14 in")
body6 = doc.addObject("PartDesign::Body", "Body005")

sketch5 = doc.addObject("Sketcher::SketchObject", "Sketch004")
body6.addObject(sketch5)
sketch5.AttachmentSupport = (doc.getObject("XY_Plane005"), [""])
sketch5.MapMode = "FlatFace"
sketch5.addGeometry([
    Part.LineSegment(V(183, 36, 0), V(155, 104, 0)),
    Part.LineSegment(V(155, 104, 0), V(104, 155, 0)),
    Part.LineSegment(V(104, 155, 0), V(36, 183, 0)),
    Part.LineSegment(V(36, 183, 0), V(33, 165, 0)),
    Part.LineSegment(V(33, 165, 0), V(93, 140, 0)),
    Part.LineSegment(V(93, 140, 0), V(140, 93, 0)),
    Part.LineSegment(V(140, 93, 0), V(165, 33, 0)),
    Part.LineSegment(V(165, 33, 0), V(165, -33, 0)),
    Part.LineSegment(V(165, -33, 0), V(140, -93, 0)),
    Part.LineSegment(V(140, -93, 0), V(93, -140, 0)),
    Part.LineSegment(V(93, -140, 0), V(33, -165, 0)),
    Part.LineSegment(V(33, -165, 0), V(-33, -165, 0)),
    Part.LineSegment(V(-33, -165, 0), V(-93, -140, 0)),
    Part.LineSegment(V(-93, -140, 0), V(-140, -93, 0)),
    Part.LineSegment(V(-140, -93, 0), V(-165, -33, 0)),
    Part.LineSegment(V(-165, -33, 0), V(-165, 33, 0)),
    Part.LineSegment(V(-165, 33, 0), V(-140, 93, 0)),
    Part.LineSegment(V(-140, 93, 0), V(-93, 140, 0)),
    Part.LineSegment(V(-93, 140, 0), V(-33, 165, 0)),
    Part.LineSegment(V(-33, 165, 0), V(-36, 183, 0)),
    Part.LineSegment(V(-36, 183, 0), V(-104, 155, 0)),
    Part.LineSegment(V(-104, 155, 0), V(-155, 104, 0)),
    Part.LineSegment(V(-155, 104, 0), V(-183, 36, 0)),
    Part.LineSegment(V(-183, 36, 0), V(-183, -36, 0)),
    Part.LineSegment(V(-183, -36, 0), V(-155, -104, 0)),
    Part.LineSegment(V(-155, -104, 0), V(-104, -155, 0)),
    Part.LineSegment(V(-104, -155, 0), V(-36, -183, 0)),
    Part.LineSegment(V(-36, -183, 0), V(36, -183, 0)),
    Part.LineSegment(V(36, -183, 0), V(104, -155, 0)),
    Part.LineSegment(V(104, -155, 0), V(155, -104, 0)),
    Part.LineSegment(V(155, -104, 0), V(183, -36, 0)),
    Part.LineSegment(V(183, -36, 0), V(183, 36, 0)),
], False)
sketch5.addConstraint([
    Sketcher.Constraint("Coincident", 0, 2, 1, 1),
    Sketcher.Constraint("Coincident", 1, 2, 2, 1),
    Sketcher.Constraint("Coincident", 2, 2, 3, 1),
    Sketcher.Constraint("Coincident", 3, 2, 4, 1),
    Sketcher.Constraint("Coincident", 4, 2, 5, 1),
    Sketcher.Constraint("Coincident", 5, 2, 6, 1),
    Sketcher.Constraint("Coincident", 6, 2, 7, 1),
    Sketcher.Constraint("Coincident", 7, 2, 8, 1),
    Sketcher.Constraint("Coincident", 8, 2, 9, 1),
    Sketcher.Constraint("Coincident", 9, 2, 10, 1),
    Sketcher.Constraint("Coincident", 10, 2, 11, 1),
    Sketcher.Constraint("Coincident", 11, 2, 12, 1),
    Sketcher.Constraint("Coincident", 12, 2, 13, 1),
    Sketcher.Constraint("Coincident", 13, 2, 14, 1),
    Sketcher.Constraint("Coincident", 14, 2, 15, 1),
    Sketcher.Constraint("Coincident", 15, 2, 16, 1),
    Sketcher.Constraint("Coincident", 16, 2, 17, 1),
    Sketcher.Constraint("Coincident", 17, 2, 18, 1),
    Sketcher.Constraint("Coincident", 18, 2, 19, 1),
    Sketcher.Constraint("Coincident", 19, 2, 20, 1),
    Sketcher.Constraint("Coincident", 20, 2, 21, 1),
    Sketcher.Constraint("Coincident", 21, 2, 22, 1),
    Sketcher.Constraint("Coincident", 22, 2, 23, 1),
    Sketcher.Constraint("Coincident", 23, 2, 24, 1),
    Sketcher.Constraint("Coincident", 24, 2, 25, 1),
    Sketcher.Constraint("Coincident", 25, 2, 26, 1),
    Sketcher.Constraint("Coincident", 26, 2, 27, 1),
    Sketcher.Constraint("Coincident", 27, 2, 28, 1),
    Sketcher.Constraint("Coincident", 28, 2, 29, 1),
    Sketcher.Constraint("Coincident", 29, 2, 30, 1),
    Sketcher.Constraint("Coincident", 30, 2, 31, 1),
    Sketcher.Constraint("Coincident", 31, 2, 0, 1),
    Sketcher.Constraint("Vertical", 7),
    Sketcher.Constraint("Horizontal", 11),
    Sketcher.Constraint("Vertical", 15),
    Sketcher.Constraint("Vertical", 23),
    Sketcher.Constraint("Horizontal", 27),
    Sketcher.Constraint("Vertical", 31),
    Sketcher.Constraint("Symmetric", 3, 2, 11, 2, -1, 1),
    Sketcher.Constraint("Symmetric", 4, 2, 12, 2, -1, 1),
    Sketcher.Constraint("Symmetric", 5, 2, 13, 2, -1, 1),
    Sketcher.Constraint("Symmetric", 6, 2, 14, 2, -1, 1),
    Sketcher.Constraint("Symmetric", 8, 2, 16, 2, -1, 1),
    Sketcher.Constraint("Symmetric", 9, 2, 17, 2, -1, 1),
    Sketcher.Constraint("Symmetric", 10, 2, 18, 2, -1, 1),
    Sketcher.Constraint("Symmetric", 0, 2, 24, 2, -1, 1),
    Sketcher.Constraint("Symmetric", 1, 2, 25, 2, -1, 1),
    Sketcher.Constraint("Symmetric", 2, 2, 26, 2, -1, 1),
    Sketcher.Constraint("Symmetric", 19, 2, 27, 2, -1, 1),
    Sketcher.Constraint("Symmetric", 20, 2, 28, 2, -1, 1),
    Sketcher.Constraint("Symmetric", 21, 2, 29, 2, -1, 1),
    Sketcher.Constraint("Symmetric", 22, 2, 30, 2, -1, 1),
    Sketcher.Constraint("Symmetric", 9, 2, 12, 2, -2),
    Sketcher.Constraint("Symmetric", 8, 2, 13, 2, -2),
    Sketcher.Constraint("Symmetric", 1, 2, 20, 2, -2),
    Sketcher.Constraint("Symmetric", 0, 2, 21, 2, -2),
    Sketcher.Constraint("Parallel", 2, 4),
    Sketcher.Constraint("Parallel", 1, 5),
    Sketcher.Constraint("Parallel", 0, 6),
    Sketcher.Constraint("Perpendicular", 4, 8),
    Sketcher.Constraint("Perpendicular", 5, 9),
    Sketcher.Constraint("Perpendicular", 6, 10),
    Sketcher.Constraint("Perpendicular", 12, 16),
    Sketcher.Constraint("Parallel", 18, 20),
    Sketcher.Constraint("Parallel", 16, 22),
    Sketcher.Constraint("Perpendicular", 20, 24),
    Sketcher.Constraint("Horizontal", 7, 2, 14, 2),
    Sketcher.Constraint("Equal", 11, 7),
    Sketcher.Constraint("Equal", 27, 23),
    Sketcher.Constraint("Equal", 0, 1),
    Sketcher.Constraint("Equal", 1, 2),
    Sketcher.Constraint("Equal", 4, 5),
    Sketcher.Constraint("Equal", 5, 6),
    Sketcher.Constraint("Angle", 0, Q("112.5 deg")),
    Sketcher.Constraint("Angle", 3, Q("-101.25 deg")),
    Sketcher.Constraint("DistanceX", 27, 1, 27, 2, 72.722362),
    Sketcher.Constraint("DistanceY", -1, 1, 2, 2, 182.8),
    Sketcher.Constraint("DistanceY", -1, 1, 3, 2, 164.8),
])
pad4 = doc.addObject("PartDesign::Pad", "Pad003")
body6.addObject(pad4)
pad4.Profile = sketch5
pad4.Length = Q("14 in")
body7 = doc.addObject("PartDesign::Body", "Body006")

sketch6 = doc.addObject("Sketcher::SketchObject", "Sketch005")
body7.addObject(sketch6)
sketch6.AttachmentSupport = (doc.getObject("XY_Plane006"), [""])
sketch6.MapMode = "FlatFace"
sketch6.addGeometry([
    Part.LineSegment(V(30, 112, 0), V(35, 132, 0)),
    Part.LineSegment(V(35, 132, 0), V(-35, 132, 0)),
    Part.LineSegment(V(-35, 132, 0), V(-30, 112, 0)),
    Part.LineSegment(V(-30, 112, 0), V(30, 112, 0)),
], False)
sketch6.addConstraint([
    Sketcher.Constraint("Coincident", 0, 2, 1, 1),
    Sketcher.Constraint("Coincident", 1, 2, 2, 1),
    Sketcher.Constraint("Coincident", 2, 2, 3, 1),
    Sketcher.Constraint("Coincident", 3, 2, 0, 1),
    Sketcher.Constraint("Horizontal", 1),
    Sketcher.Constraint("Horizontal", 3),
    Sketcher.Constraint("Equal", 0, 2),
    Sketcher.Constraint("Angle", 0, Q("75 deg")),
    Sketcher.Constraint("DistanceX", 2, 2, 0, 2, Q("2.5740001 in")),
    Sketcher.Constraint("DistanceX", 3, 1, 3, 2, 60.020619),
    Sketcher.Constraint("DistanceY", -1, 1, 0, 2, 132.0),
    Sketcher.Constraint("DistanceX", 2, 2, -1, 1, 30.01031),
])
pad5 = doc.addObject("PartDesign::Pad", "Pad004")
body7.addObject(pad5)
pad5.Profile = sketch6
pad5.Length = Q("8 in")
body8 = doc.addObject("PartDesign::Body", "Body007")

sketch7 = doc.addObject("Sketcher::SketchObject", "Sketch006")
body8.addObject(sketch7)
sketch7.AttachmentSupport = (doc.getObject("XY_Plane007"), [""])
sketch7.MapMode = "FlatFace"
sketch7.addGeometry([
    Part.LineSegment(V(132, -35, 0), V(132, 35, 0)),
    Part.LineSegment(V(132, 35, 0), V(97, 97, 0)),
    Part.LineSegment(V(97, 97, 0), V(35, 132, 0)),
    Part.LineSegment(V(35, 132, 0), V(30, 112, 0)),
    Part.LineSegment(V(30, 112, 0), V(82, 82, 0)),
    Part.LineSegment(V(82, 82, 0), V(112, 30, 0)),
    Part.LineSegment(V(112, 30, 0), V(112, -30, 0)),
    Part.LineSegment(V(112, -30, 0), V(82, -82, 0)),
    Part.LineSegment(V(82, -82, 0), V(30, -112, 0)),
    Part.LineSegment(V(30, -112, 0), V(-30, -112, 0)),
    Part.LineSegment(V(-30, -112, 0), V(-82, -82, 0)),
    Part.LineSegment(V(-82, -82, 0), V(-112, -30, 0)),
    Part.LineSegment(V(-112, -30, 0), V(-112, 30, 0)),
    Part.LineSegment(V(-112, 30, 0), V(-82, 82, 0)),
    Part.LineSegment(V(-82, 82, 0), V(-30, 112, 0)),
    Part.LineSegment(V(-30, 112, 0), V(-35, 132, 0)),
    Part.LineSegment(V(-35, 132, 0), V(-97, 97, 0)),
    Part.LineSegment(V(-97, 97, 0), V(-132, 35, 0)),
    Part.LineSegment(V(-132, 35, 0), V(-132, -35, 0)),
    Part.LineSegment(V(-132, -35, 0), V(-97, -97, 0)),
    Part.LineSegment(V(-97, -97, 0), V(-35, -132, 0)),
    Part.LineSegment(V(-35, -132, 0), V(35, -132, 0)),
    Part.LineSegment(V(35, -132, 0), V(97, -97, 0)),
    Part.LineSegment(V(97, -97, 0), V(132, -35, 0)),
], False)
sketch7.addConstraint([
    Sketcher.Constraint("Coincident", 0, 2, 1, 1),
    Sketcher.Constraint("Coincident", 1, 2, 2, 1),
    Sketcher.Constraint("Coincident", 2, 2, 3, 1),
    Sketcher.Constraint("Coincident", 3, 2, 4, 1),
    Sketcher.Constraint("Coincident", 4, 2, 5, 1),
    Sketcher.Constraint("Coincident", 5, 2, 6, 1),
    Sketcher.Constraint("Coincident", 6, 2, 7, 1),
    Sketcher.Constraint("Coincident", 7, 2, 8, 1),
    Sketcher.Constraint("Coincident", 8, 2, 9, 1),
    Sketcher.Constraint("Coincident", 9, 2, 10, 1),
    Sketcher.Constraint("Coincident", 10, 2, 11, 1),
    Sketcher.Constraint("Coincident", 11, 2, 12, 1),
    Sketcher.Constraint("Coincident", 12, 2, 13, 1),
    Sketcher.Constraint("Coincident", 13, 2, 14, 1),
    Sketcher.Constraint("Coincident", 14, 2, 15, 1),
    Sketcher.Constraint("Coincident", 15, 2, 16, 1),
    Sketcher.Constraint("Coincident", 16, 2, 17, 1),
    Sketcher.Constraint("Coincident", 17, 2, 18, 1),
    Sketcher.Constraint("Coincident", 18, 2, 19, 1),
    Sketcher.Constraint("Coincident", 19, 2, 20, 1),
    Sketcher.Constraint("Coincident", 20, 2, 21, 1),
    Sketcher.Constraint("Coincident", 21, 2, 22, 1),
    Sketcher.Constraint("Coincident", 22, 2, 23, 1),
    Sketcher.Constraint("Coincident", 23, 2, 0, 1),
    Sketcher.Constraint("Vertical", 0),
    Sketcher.Constraint("Vertical", 6),
    Sketcher.Constraint("Horizontal", 9),
    Sketcher.Constraint("Vertical", 12),
    Sketcher.Constraint("Vertical", 18),
    Sketcher.Constraint("Horizontal", 21),
    Sketcher.Constraint("Symmetric", 3, 2, 9, 2, -1, 1),
    Sketcher.Constraint("Symmetric", 4, 2, 10, 2, -1, 1),
    Sketcher.Constraint("Symmetric", 5, 2, 11, 2, -1, 1),
    Sketcher.Constraint("Symmetric", 7, 2, 13, 2, -1, 1),
    Sketcher.Constraint("Symmetric", 8, 2, 14, 2, -1, 1),
    Sketcher.Constraint("Symmetric", 0, 2, 18, 2, -1, 1),
    Sketcher.Constraint("Symmetric", 1, 2, 19, 2, -1, 1),
    Sketcher.Constraint("Symmetric", 2, 2, 20, 2, -1, 1),
    Sketcher.Constraint("Symmetric", 15, 2, 21, 2, -1, 1),
    Sketcher.Constraint("Symmetric", 16, 2, 22, 2, -1, 1),
    Sketcher.Constraint("Symmetric", 7, 2, 10, 2, -2),
    Sketcher.Constraint("Symmetric", 1, 2, 16, 2, -2),
    Sketcher.Constraint("Parallel", 2, 4),
    Sketcher.Constraint("Parallel", 1, 5),
    Sketcher.Constraint("Perpendicular", 4, 7),
    Sketcher.Constraint("Perpendicular", 5, 8),
    Sketcher.Constraint("Perpendicular", 10, 13),
    Sketcher.Constraint("Parallel", 14, 16),
    Sketcher.Constraint("Parallel", 13, 17),
    Sketcher.Constraint("Perpendicular", 20, 23),
    Sketcher.Constraint("Horizontal", 6, 2, 11, 2),
    Sketcher.Constraint("Equal", 21, 0),
    Sketcher.Constraint("Equal", 9, 6),
    Sketcher.Constraint("Equal", 1, 2),
    Sketcher.Constraint("Equal", 4, 5),
    Sketcher.Constraint("Angle", 1, Q("120 deg")),
    Sketcher.Constraint("Angle", 3, Q("-105 deg")),
    Sketcher.Constraint("DistanceY", 6, 2, 0, 2, Q("2.5740001 in")),
    Sketcher.Constraint("DistanceX", 9, 2, 9, 1, 60.020619),
    Sketcher.Constraint("DistanceX", -1, 1, 0, 2, 132.0),
])
pad6 = doc.addObject("PartDesign::Pad", "Pad005")
body8.addObject(pad6)
pad6.Profile = sketch7
pad6.Length = Q("8 in")

doc.recompute()
